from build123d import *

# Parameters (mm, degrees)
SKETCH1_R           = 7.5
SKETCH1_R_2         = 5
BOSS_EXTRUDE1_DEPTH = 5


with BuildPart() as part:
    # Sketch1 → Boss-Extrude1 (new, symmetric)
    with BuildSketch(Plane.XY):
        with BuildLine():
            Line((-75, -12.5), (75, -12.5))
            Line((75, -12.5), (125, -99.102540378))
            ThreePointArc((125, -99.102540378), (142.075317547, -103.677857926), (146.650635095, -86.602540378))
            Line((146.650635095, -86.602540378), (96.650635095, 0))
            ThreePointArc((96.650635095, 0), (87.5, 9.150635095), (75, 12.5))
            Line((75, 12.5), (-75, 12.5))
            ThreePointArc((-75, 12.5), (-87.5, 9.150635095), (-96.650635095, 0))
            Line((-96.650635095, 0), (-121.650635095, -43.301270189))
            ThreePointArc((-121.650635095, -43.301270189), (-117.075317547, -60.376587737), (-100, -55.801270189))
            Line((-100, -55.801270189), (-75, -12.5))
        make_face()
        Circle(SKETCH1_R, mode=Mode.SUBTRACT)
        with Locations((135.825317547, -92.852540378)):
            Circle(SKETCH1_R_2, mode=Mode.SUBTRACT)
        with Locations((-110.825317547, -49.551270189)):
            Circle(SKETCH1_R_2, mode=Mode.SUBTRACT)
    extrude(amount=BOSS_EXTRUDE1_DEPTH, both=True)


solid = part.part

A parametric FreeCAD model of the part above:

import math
import FreeCAD as App
import Part
import Sketcher
from FreeCAD import Vector

doc = App.newDocument("Part")
params = doc.addObject("Spreadsheet::Sheet", "Params")
for row, (alias, value) in enumerate([
    ("sketch1_diameter", "10 mm"),
    ("sketch1_diameter2", "15 mm"),
    ("sketch1_radius", "25 mm"),
    ("sketch1_width", "150 mm"),
    ("sketch1_length", "100 mm"),
    ("pad1_length", "10 mm"),
], start=1):
    params.set(f"A{row}", alias)
    params.set(f"B{row}", "=" + value)
    params.setAlias(f"B{row}", alias)

body = doc.addObject("PartDesign::Body", "Body")

sketch1 = doc.addObject("Sketcher::SketchObject", "Sketch")
body.addObject(sketch1)
sketch1.AttachmentSupport = (doc.XY_Plane, [""])
sketch1.MapMode = "FlatFace"
sketch1.addGeometry([
    Part.LineSegment(Vector(-75, -12, 0), Vector(75, -12, 0)),
    Part.LineSegment(Vector(75, -12, 0), Vector(125, -99, 0)),
    Part.ArcOfCircle(Part.Circle(Vector(136, -93, 0), Vector(0, 0, 1), 12), math.radians(-150), math.radians(30)),
    Part.LineSegment(Vector(147, -87, 0), Vector(97, 0, 0)),
    Part.ArcOfCircle(Part.Circle(Vector(75, -12, 0), Vector(0, 0, 1), 25), math.radians(30), math.radians(90)),
    Part.LineSegment(Vector(75, 12, 0), Vector(-75, 12, 0)),
    Part.ArcOfCircle(Part.Circle(Vector(-75, -12, 0), Vector(0, 0, 1), 25), math.radians(90), math.radians(150)),
    Part.LineSegment(Vector(-97, 0, 0), Vector(-122, -43, 0)),
    Part.ArcOfCircle(Part.Circle(Vector(-111, -50, 0), Vector(0, 0, 1), 12), math.radians(150), math.radians(330)),
    Part.LineSegment(Vector(-100, -56, 0), Vector(-75, -12, 0)),
    Part.Circle(Vector(-111, -50, 0), Vector(0, 0, 1), 5),
    Part.Circle(Vector(136, -93, 0), Vector(0, 0, 1), 5),
    Part.Circle(Vector(0, 0, 0), Vector(0, 0, 1), 8),
], False)
sketch1.addConstraint([
    Sketcher.Constraint("Coincident", 0, 2, 1, 1),
    Sketcher.Constraint("Tangent", 1, 2, 2, 1),
    Sketcher.Constraint("Tangent", 2, 2, 3, 1),
    Sketcher.Constraint("Tangent", 3, 2, 4, 1),
    Sketcher.Constraint("Tangent", 4, 2, 5, 1),
    Sketcher.Constraint("Tangent", 5, 2, 6, 1),
    Sketcher.Constraint("Tangent", 6, 2, 7, 1),
    Sketcher.Constraint("Tangent", 7, 2, 8, 1),
    Sketcher.Constraint("Tangent", 8, 2, 9, 1),
    Sketcher.Constraint("Coincident", 9, 2, 0, 1),
    Sketcher.Constraint("Horizontal", 0),
    Sketcher.Constraint("Horizontal", 5),
    Sketcher.Constraint("Coincident", 12, 3, -1, 1),
    Sketcher.Constraint("Coincident", 10, 3, 8, 3),
    Sketcher.Constraint("Coincident", 11, 3, 2, 3),
    Sketcher.Constraint("Coincident", 0, 2, 4, 3),
    Sketcher.Constraint("Coincident", 9, 2, 6, 3),
    Sketcher.Constraint("Equal", 2, 8),
    Sketcher.Constraint("Equal", 10, 11),
    Sketcher.Constraint("Symmetric", 0, 2, 5, 2, -1, 1),
    Sketcher.Constraint("Symmetric", 3, 2, 6, 2, -1, 1),
    Sketcher.Constraint("Parallel", 1, 3),
    Sketcher.Constraint("Diameter", 10, 10.0),
    Sketcher.Constraint("Diameter", 12, 15.0),
    Sketcher.Constraint("Radius", 4, 25.0),
    Sketcher.Constraint("DistanceX", 0, 1, 0, 2, 150.0),
    Sketcher.Constraint("Distance", 1, 100.0),
    Sketcher.Constraint("Distance", 7, 50.0),
])
sketch1.setExpression("Constraints[22]", "Params.sketch1_diameter")
sketch1.setExpression("Constraints[23]", "Params.sketch1_diameter2")
sketch1.setExpression("Constraints[24]", "Params.sketch1_radius")
sketch1.setExpression("Constraints[25]", "Params.sketch1_width")
sketch1.setExpression("Constraints[26]", "Params.sketch1_length")
pad1 = doc.addObject("PartDesign::Pad", "Pad")
body.addObject(pad1)
pad1.Profile = sketch1
pad1.setExpression("Length", "Params.pad1_length")
pad1.Midplane = True

doc.recompute()
